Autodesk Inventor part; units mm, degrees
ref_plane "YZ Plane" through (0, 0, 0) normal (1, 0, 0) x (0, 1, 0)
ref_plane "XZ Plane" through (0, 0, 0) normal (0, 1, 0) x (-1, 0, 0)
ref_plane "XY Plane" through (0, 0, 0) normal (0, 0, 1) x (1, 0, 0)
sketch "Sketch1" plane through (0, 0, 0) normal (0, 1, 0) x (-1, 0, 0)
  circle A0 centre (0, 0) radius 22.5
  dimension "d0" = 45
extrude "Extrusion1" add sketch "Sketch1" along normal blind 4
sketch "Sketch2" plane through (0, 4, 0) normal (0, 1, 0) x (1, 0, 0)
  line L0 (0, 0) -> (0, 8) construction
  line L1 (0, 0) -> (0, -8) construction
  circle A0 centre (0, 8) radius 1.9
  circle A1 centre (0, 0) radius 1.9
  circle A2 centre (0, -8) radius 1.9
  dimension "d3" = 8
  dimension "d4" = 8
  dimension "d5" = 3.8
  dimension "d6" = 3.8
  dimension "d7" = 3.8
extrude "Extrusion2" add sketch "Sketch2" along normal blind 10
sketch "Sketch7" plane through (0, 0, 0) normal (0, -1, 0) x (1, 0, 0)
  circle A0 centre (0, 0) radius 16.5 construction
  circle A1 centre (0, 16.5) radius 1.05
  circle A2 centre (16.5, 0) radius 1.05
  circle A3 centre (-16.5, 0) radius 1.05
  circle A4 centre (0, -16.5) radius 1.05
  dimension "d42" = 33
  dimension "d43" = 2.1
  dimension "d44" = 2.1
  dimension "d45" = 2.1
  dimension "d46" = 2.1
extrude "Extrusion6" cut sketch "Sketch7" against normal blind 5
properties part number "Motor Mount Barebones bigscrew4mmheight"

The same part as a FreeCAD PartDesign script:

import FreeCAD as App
import Part
import Sketcher
Q = App.Units.Quantity

doc = App.newDocument("Part")
body = doc.addObject("PartDesign::Body", "Body")

sketch1 = doc.addObject("Sketcher::SketchObject", "Sketch")
body.addObject(sketch1)
sketch1.AttachmentSupport = (doc.XZ_Plane, [""])
sketch1.MapMode = "FlatFace"
sketch1.addGeometry(Part.Circle(App.Vector(0, 0, 0), App.Vector(0, 0, 1), 22.5), False)
sketch1.addConstraint(Sketcher.Constraint("Coincident", 0, 3, -1, 1))
sketch1.addConstraint(Sketcher.Constraint("Diameter", 0, Q("45 mm")))
pad1 = doc.addObject("PartDesign::Pad", "Pad")
body.addObject(pad1)
pad1.Profile = sketch1
pad1.Length = 4
pad1.Reversed = True

sketch2 = doc.addObject("Sketcher::SketchObject", "Sketch001")
body.addObject(sketch2)
sketch2.AttachmentSupport = (doc.XZ_Plane, [""])
sketch2.MapMode = "FlatFace"
sketch2.AttachmentOffset = App.Placement(App.Vector(0, 0, -4), App.Rotation())
sketch2.addGeometry(Part.Circle(App.Vector(0, -8, 0), App.Vector(0, 0, 1), 1.9), False)
sketch2.addGeometry(Part.Circle(App.Vector(0, 0, 0), App.Vector(0, 0, 1), 1.9), False)
sketch2.addGeometry(Part.Circle(App.Vector(0, 8, 0), App.Vector(0, 0, 1), 1.9), False)
sketch2.addConstraint(Sketcher.Constraint("Coincident", 1, 3, -1, 1))
sketch2.addConstraint(Sketcher.Constraint("Equal", 0, 1))
sketch2.addConstraint(Sketcher.Constraint("Equal", 1, 2))
sketch2.addConstraint(Sketcher.Constraint("Symmetric", 0, 3, 2, 3, -1, 1))
sketch2.addConstraint(Sketcher.Constraint("PointOnObject", 0, 3, -2))
sketch2.addConstraint(Sketcher.Constraint("Diameter", 0, Q("3.8 mm")))
sketch2.addConstraint(Sketcher.Constraint("DistanceY", 0, 3, -1, 1, Q("8 mm")))
pad2 = doc.addObject("PartDesign::Pad", "Pad001")
body.addObject(pad2)
pad2.Profile = sketch2
pad2.Length = 10
pad2.Reversed = True

sketch3 = doc.addObject("Sketcher::SketchObject", "Sketch002")
body.addObject(sketch3)
sketch3.AttachmentSupport = (doc.XZ_Plane, [""])
sketch3.MapMode = "FlatFace"
sketch3.addGeometry(Part.Circle(App.Vector(0, 16.5, 0), App.Vector(0, 0, 1), 1.05), False)
sketch3.addGeometry(Part.Circle(App.Vector(16.5, 0, 0), App.Vector(0, 0, 1), 1.05), False)
sketch3.addGeometry(Part.Circle(App.Vector(-16.5, 0, 0), App.Vector(0, 0, 1), 1.05), False)
sketch3.addGeometry(Part.Circle(App.Vector(0, -16.5, 0), App.Vector(0, 0, 1), 1.05), False)
sketch3.addConstraint(Sketcher.Constraint("Equal", 0, 1))
sketch3.addConstraint(Sketcher.Constraint("Equal", 1, 2))
sketch3.addConstraint(Sketcher.Constraint("Equal", 2, 3))
sketch3.addConstraint(Sketcher.Constraint("Symmetric", 1, 3, 2, 3, -1, 1))
sketch3.addConstraint(Sketcher.Constraint("Symmetric", 0, 3, 3, 3, -1, 1))
sketch3.addConstraint(Sketcher.Constraint("PointOnObject", 0, 3, -2))
sketch3.addConstraint(Sketcher.Constraint("PointOnObject", 1, 3, -1))
sketch3.addConstraint(Sketcher.Constraint("Diameter", 0, Q("2.1 mm")))
sketch3.addConstraint(Sketcher.Constraint("DistanceX", 2, 3, 1, 3, Q("33 mm")))
sketch3.addConstraint(Sketcher.Constraint("DistanceY", 3, 3, 0, 3, Q("33 mm")))
pocket1 = doc.addObject("PartDesign::Pocket", "Pocket")
body.addObject(pocket1)
pocket1.Profile = sketch3
pocket1.Length = 5

doc.recompute()
